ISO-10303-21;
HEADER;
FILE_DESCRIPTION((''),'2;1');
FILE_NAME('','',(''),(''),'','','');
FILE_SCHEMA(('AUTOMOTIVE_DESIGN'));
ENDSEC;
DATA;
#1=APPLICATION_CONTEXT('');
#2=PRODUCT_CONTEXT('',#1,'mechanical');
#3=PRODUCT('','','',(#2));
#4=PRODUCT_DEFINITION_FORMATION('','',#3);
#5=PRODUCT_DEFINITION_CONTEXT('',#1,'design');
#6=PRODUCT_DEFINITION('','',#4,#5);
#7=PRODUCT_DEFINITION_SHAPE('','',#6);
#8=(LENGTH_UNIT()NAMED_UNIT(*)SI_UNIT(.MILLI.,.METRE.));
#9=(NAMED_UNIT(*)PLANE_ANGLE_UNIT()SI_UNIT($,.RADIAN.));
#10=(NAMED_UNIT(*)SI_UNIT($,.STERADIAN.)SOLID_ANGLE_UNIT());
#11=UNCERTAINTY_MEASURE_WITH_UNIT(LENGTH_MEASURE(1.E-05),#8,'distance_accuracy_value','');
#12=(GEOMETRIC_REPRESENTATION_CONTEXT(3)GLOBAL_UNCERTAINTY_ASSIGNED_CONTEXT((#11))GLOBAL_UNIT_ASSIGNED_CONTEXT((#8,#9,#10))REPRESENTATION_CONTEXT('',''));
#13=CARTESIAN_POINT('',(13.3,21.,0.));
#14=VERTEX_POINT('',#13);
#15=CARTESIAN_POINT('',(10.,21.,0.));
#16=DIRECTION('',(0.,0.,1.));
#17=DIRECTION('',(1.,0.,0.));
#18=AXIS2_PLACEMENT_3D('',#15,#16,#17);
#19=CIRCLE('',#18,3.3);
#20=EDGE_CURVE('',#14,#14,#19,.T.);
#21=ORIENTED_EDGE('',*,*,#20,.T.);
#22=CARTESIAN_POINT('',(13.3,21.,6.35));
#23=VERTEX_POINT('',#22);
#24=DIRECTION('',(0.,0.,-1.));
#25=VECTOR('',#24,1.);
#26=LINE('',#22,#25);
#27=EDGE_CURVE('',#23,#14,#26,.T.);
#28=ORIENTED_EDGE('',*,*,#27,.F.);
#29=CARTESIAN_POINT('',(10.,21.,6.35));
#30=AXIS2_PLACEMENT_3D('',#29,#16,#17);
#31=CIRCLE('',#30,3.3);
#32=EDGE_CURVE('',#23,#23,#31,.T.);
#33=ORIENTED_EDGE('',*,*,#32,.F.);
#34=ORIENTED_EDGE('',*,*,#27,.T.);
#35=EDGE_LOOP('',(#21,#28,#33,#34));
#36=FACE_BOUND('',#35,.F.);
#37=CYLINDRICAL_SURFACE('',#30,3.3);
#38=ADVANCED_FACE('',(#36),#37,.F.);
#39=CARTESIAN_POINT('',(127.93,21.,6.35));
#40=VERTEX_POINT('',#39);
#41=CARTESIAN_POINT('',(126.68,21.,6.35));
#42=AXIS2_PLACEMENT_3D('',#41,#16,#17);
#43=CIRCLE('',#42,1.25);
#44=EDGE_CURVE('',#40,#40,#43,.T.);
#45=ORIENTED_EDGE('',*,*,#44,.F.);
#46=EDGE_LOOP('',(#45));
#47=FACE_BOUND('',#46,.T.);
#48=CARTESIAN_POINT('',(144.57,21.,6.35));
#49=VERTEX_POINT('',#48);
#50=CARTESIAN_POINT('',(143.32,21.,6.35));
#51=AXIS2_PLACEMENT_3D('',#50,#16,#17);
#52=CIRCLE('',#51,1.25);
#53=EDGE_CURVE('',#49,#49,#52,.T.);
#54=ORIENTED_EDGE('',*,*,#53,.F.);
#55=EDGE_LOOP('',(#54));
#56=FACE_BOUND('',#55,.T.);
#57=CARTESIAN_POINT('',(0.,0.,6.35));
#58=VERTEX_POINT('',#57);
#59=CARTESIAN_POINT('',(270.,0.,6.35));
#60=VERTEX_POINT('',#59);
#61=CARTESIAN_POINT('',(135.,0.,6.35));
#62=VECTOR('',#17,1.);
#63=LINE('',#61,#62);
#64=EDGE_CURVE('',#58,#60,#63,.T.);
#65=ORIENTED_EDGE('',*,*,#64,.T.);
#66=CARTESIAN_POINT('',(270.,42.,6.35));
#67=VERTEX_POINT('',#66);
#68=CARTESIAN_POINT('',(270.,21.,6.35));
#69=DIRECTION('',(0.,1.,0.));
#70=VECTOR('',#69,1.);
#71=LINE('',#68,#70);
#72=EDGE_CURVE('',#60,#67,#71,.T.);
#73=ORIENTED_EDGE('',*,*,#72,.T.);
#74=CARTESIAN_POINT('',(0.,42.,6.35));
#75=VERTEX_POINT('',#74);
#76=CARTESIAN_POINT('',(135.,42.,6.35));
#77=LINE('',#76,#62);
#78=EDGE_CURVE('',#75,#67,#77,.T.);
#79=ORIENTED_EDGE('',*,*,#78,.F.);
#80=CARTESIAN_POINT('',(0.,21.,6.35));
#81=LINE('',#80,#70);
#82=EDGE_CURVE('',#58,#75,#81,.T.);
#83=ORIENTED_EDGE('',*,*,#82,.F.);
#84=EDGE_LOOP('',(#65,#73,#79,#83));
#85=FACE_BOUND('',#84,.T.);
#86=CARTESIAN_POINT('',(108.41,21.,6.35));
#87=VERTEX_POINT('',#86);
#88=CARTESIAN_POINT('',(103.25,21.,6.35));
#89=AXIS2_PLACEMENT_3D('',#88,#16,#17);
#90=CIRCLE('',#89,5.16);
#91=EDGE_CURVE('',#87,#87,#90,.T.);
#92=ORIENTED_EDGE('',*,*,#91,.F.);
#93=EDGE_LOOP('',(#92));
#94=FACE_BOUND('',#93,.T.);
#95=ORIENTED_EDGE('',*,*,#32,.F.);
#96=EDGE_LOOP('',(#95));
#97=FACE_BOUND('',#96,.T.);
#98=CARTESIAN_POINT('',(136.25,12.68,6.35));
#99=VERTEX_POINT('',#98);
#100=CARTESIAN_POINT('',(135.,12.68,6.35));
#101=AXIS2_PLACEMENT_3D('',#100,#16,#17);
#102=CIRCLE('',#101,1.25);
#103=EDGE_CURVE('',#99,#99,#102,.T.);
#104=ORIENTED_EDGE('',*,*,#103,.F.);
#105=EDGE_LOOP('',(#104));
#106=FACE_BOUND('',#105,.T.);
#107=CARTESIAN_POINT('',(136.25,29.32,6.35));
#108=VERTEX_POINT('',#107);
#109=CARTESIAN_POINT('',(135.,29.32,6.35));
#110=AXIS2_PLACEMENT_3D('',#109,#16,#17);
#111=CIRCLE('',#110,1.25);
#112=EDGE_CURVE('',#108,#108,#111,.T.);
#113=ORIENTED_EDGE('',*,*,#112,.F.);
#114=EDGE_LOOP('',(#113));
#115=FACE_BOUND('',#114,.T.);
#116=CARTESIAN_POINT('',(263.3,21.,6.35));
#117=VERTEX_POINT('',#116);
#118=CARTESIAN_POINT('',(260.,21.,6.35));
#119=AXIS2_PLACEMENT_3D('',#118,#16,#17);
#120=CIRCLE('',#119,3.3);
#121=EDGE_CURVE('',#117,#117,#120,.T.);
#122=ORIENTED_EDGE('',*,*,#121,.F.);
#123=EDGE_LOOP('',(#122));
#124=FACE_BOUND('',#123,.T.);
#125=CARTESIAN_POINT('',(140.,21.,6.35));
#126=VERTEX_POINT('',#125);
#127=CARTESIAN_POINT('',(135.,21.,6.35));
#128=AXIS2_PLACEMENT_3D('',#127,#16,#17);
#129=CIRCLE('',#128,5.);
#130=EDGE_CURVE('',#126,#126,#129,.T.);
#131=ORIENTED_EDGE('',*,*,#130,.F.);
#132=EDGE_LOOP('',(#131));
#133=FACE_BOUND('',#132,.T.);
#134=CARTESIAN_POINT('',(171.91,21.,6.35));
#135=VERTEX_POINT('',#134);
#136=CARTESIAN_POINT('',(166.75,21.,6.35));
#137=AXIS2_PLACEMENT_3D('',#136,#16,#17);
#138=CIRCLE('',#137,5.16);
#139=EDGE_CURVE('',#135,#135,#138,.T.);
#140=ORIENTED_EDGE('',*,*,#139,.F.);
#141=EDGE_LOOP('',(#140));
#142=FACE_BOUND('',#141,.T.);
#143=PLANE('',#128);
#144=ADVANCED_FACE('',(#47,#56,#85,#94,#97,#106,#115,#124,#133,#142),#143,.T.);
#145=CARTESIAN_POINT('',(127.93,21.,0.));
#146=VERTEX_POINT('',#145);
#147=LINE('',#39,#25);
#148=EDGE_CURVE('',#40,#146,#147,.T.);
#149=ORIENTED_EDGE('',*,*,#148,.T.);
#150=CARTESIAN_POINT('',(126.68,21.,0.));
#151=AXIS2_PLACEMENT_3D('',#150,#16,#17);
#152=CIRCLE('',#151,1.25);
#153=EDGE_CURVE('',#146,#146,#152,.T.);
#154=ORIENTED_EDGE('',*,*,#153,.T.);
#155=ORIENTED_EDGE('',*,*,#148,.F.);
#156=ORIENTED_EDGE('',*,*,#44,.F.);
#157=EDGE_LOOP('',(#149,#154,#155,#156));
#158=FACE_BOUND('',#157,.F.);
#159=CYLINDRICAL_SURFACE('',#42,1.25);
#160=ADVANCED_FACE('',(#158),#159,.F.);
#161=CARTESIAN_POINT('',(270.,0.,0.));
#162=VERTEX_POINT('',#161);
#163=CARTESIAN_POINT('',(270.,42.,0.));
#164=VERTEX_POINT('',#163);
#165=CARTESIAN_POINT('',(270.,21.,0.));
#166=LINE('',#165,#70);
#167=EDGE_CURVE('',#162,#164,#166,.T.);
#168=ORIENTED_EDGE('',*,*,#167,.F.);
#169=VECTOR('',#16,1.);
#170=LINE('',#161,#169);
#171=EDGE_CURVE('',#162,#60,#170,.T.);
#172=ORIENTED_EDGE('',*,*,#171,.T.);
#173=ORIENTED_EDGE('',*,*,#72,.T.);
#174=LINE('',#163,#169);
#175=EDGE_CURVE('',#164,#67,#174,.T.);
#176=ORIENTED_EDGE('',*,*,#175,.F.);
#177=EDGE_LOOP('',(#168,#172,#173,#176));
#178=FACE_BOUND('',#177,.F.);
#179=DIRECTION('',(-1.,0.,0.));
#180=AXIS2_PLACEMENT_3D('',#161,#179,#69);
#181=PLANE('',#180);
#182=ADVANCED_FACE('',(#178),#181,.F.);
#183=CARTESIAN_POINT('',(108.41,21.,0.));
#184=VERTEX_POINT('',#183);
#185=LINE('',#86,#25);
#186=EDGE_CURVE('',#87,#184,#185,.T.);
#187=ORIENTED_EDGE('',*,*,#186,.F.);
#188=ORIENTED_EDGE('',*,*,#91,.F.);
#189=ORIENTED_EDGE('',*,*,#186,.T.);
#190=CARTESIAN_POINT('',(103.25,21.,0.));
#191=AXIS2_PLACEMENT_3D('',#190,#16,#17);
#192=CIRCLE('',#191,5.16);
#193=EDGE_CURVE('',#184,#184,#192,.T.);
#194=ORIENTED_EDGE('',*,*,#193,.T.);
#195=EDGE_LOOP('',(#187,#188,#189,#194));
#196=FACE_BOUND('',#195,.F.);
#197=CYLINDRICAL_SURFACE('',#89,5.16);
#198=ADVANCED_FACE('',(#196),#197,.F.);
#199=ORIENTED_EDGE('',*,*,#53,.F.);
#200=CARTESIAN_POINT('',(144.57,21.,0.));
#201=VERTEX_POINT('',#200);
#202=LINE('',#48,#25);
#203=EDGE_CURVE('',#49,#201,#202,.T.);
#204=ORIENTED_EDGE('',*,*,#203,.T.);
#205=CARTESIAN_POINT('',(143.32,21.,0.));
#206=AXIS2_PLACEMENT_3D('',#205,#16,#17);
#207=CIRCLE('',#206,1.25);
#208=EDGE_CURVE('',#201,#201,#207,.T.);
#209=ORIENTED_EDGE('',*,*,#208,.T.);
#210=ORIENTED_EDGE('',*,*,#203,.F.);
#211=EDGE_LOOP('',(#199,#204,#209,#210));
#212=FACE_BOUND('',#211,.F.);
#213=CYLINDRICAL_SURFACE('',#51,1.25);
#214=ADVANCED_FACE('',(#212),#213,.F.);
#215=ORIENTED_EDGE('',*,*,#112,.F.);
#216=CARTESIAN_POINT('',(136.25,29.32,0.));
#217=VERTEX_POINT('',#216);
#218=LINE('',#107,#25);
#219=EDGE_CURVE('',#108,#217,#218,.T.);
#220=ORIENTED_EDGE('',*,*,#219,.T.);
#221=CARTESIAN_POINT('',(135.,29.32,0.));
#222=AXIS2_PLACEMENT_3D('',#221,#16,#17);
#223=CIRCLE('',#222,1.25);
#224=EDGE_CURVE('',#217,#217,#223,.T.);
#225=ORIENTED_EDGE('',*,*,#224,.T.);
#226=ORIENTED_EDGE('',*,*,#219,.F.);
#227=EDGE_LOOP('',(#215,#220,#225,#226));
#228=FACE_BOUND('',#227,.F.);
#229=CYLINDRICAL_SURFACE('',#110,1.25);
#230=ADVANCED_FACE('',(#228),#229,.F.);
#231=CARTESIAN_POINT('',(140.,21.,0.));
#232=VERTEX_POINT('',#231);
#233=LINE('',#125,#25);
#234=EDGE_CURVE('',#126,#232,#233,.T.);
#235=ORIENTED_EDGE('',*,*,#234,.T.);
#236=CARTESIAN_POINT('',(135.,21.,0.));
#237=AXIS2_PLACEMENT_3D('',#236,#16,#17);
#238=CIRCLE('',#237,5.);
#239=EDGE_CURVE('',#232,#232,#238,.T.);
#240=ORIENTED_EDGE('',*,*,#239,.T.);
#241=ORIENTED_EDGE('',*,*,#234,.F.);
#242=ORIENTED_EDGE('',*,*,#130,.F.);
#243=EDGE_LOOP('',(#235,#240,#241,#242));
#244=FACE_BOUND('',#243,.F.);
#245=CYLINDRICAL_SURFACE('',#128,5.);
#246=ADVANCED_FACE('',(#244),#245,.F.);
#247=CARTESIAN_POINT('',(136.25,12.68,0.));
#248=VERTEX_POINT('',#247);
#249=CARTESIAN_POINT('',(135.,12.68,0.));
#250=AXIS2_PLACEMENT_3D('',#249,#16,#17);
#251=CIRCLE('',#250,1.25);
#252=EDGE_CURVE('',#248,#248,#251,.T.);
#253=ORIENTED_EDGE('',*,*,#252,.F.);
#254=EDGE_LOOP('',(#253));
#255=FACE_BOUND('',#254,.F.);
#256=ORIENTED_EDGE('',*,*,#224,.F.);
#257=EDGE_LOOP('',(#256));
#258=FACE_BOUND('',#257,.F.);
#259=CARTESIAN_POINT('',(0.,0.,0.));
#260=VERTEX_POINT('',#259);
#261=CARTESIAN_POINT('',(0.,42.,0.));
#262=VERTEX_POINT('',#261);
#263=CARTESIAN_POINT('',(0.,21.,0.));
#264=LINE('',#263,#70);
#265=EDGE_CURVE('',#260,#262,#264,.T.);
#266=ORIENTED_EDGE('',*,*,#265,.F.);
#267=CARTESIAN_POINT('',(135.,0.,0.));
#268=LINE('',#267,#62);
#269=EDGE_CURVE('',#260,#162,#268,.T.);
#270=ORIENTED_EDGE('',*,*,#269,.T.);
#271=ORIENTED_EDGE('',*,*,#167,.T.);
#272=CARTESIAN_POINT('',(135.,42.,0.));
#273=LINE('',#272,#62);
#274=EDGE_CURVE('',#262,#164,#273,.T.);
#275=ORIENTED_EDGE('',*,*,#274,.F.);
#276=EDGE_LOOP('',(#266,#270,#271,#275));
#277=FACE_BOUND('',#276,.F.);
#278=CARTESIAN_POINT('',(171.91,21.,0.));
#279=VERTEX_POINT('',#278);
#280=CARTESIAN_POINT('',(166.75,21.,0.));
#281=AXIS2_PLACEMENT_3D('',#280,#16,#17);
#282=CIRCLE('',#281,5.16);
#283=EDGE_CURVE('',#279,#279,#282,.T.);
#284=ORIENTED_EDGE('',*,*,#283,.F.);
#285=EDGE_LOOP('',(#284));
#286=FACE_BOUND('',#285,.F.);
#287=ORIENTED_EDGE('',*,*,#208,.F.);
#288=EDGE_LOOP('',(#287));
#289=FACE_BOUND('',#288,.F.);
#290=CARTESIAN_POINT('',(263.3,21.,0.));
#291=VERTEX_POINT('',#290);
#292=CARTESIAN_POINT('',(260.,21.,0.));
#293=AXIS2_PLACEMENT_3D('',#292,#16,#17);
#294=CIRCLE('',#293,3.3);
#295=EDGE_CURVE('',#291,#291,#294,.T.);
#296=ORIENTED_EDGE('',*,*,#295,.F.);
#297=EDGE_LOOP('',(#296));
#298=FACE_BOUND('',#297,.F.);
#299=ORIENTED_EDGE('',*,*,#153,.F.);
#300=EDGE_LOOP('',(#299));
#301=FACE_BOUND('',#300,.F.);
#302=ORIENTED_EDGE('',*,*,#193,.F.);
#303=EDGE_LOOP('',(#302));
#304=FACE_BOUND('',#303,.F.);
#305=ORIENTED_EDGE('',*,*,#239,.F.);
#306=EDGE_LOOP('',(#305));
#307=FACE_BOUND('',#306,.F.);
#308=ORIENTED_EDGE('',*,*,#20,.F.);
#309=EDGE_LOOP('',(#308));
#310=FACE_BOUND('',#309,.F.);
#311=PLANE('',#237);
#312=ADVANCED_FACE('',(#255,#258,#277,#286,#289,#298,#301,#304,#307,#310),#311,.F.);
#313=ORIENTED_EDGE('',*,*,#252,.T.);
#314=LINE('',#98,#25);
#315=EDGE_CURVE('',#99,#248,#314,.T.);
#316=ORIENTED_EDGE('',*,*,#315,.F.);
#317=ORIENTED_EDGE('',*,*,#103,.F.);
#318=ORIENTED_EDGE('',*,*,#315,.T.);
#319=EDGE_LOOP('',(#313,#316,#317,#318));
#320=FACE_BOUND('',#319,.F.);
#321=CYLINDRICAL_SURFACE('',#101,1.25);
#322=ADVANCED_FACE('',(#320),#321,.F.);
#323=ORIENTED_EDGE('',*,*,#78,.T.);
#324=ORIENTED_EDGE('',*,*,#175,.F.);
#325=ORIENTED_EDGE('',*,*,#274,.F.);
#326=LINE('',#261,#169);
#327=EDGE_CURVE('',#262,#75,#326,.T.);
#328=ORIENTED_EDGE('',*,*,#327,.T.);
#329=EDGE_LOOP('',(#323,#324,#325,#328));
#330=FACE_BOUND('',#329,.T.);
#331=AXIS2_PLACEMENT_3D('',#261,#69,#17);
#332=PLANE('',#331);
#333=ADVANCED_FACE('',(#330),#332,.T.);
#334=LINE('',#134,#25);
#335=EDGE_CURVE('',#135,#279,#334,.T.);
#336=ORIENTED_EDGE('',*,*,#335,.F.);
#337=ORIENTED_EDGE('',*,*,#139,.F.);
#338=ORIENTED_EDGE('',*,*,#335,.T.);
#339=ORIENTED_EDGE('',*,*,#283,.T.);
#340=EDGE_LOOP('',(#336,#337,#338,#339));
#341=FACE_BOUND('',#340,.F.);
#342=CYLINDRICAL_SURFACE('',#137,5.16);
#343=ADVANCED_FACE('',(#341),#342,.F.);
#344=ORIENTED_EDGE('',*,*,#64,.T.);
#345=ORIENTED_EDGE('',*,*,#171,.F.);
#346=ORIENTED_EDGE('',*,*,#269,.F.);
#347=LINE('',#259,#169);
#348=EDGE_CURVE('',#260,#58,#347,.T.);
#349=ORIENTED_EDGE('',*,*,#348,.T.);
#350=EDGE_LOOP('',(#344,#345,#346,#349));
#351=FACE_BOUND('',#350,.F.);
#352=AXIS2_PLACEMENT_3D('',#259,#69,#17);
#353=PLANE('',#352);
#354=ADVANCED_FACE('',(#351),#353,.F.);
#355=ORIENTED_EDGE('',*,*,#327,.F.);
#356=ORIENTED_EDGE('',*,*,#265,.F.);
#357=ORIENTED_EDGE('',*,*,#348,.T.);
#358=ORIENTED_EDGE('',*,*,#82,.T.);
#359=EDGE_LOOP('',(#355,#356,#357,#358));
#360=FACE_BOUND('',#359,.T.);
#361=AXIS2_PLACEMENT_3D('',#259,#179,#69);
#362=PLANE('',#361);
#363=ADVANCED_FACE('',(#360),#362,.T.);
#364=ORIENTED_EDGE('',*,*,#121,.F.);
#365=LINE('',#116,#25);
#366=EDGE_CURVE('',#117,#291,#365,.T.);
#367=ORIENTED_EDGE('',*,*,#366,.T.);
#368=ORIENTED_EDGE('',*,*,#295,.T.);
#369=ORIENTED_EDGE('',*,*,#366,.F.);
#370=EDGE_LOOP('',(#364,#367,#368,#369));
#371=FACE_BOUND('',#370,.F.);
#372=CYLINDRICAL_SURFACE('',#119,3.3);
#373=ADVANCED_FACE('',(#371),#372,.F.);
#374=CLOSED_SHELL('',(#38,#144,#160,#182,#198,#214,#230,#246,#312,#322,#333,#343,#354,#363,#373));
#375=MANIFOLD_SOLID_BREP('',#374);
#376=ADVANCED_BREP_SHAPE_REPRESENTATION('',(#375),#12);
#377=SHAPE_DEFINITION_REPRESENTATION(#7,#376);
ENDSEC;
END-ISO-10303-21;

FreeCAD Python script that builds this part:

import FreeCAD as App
import Part
import Sketcher

V = App.Vector

doc = App.newDocument("Part")
params = doc.addObject("Spreadsheet::Sheet", "Params")
for row, (alias, value) in enumerate([
    ("sketch1_width", "270 mm"),
    ("sketch1_height", "42 mm"),
    ("pad1_length", "6.35 mm"),
    ("sketch2_diameter", "10 mm"),
    ("sketch3_diameter", "6.6 mm"),
    ("sketch4_diameter", "10.32 mm"),
    ("sketch5_diameter", "2.5 mm"),
], start=1):
    params.set(f"A{row}", alias)
    params.set(f"B{row}", "=" + value)
    params.setAlias(f"B{row}", alias)

body = doc.addObject("PartDesign::Body", "Body")

# Sketch on XY plane
sketch1 = body.newObject("Sketcher::SketchObject", "Sketch")
sketch1.AttachmentSupport = (doc.getObject("XY_Plane"), [""])
sketch1.MapMode = "FlatFace"
sketch1.addGeometry(Part.LineSegment(V(0, 42, 0), V(0, 0, 0)), False)
sketch1.addGeometry(Part.LineSegment(V(0, 0, 0), V(270, 0, 0)), False)
sketch1.addGeometry(Part.LineSegment(V(270, 0, 0), V(270, 42, 0)), False)
sketch1.addGeometry(Part.LineSegment(V(270, 42, 0), V(0, 42, 0)), False)
sketch1.addConstraint(Sketcher.Constraint("Coincident", 0, 2, 1, 1))
sketch1.addConstraint(Sketcher.Constraint("Coincident", 1, 2, 2, 1))
sketch1.addConstraint(Sketcher.Constraint("Coincident", 2, 2, 3, 1))
sketch1.addConstraint(Sketcher.Constraint("Coincident", 3, 2, 0, 1))
sketch1.addConstraint(Sketcher.Constraint("Vertical", 0))
sketch1.addConstraint(Sketcher.Constraint("Horizontal", 1))
sketch1.addConstraint(Sketcher.Constraint("Vertical", 2))
sketch1.addConstraint(Sketcher.Constraint("Horizontal", 3))
sketch1.addConstraint(Sketcher.Constraint("Coincident", 0, 2, -1, 1))
sketch1.addConstraint(Sketcher.Constraint("DistanceX", 1, 1, 1, 2, 270.0))
sketch1.addConstraint(Sketcher.Constraint("DistanceY", 0, 2, 0, 1, 42.0))
sketch1.setExpression("Constraints[9]", "Params.sketch1_width")
sketch1.setExpression("Constraints[10]", "Params.sketch1_height")
pad1 = body.newObject("PartDesign::Pad", "Pad")
pad1.Profile = sketch1
pad1.setExpression("Length", "Params.pad1_length")

# Sketch on XY plane
sketch2 = body.newObject("Sketcher::SketchObject", "Sketch001")
sketch2.AttachmentSupport = (doc.getObject("XY_Plane"), [""])
sketch2.MapMode = "FlatFace"
sketch2.AttachmentOffset = App.Placement(V(0, 0, 6.35), App.Rotation())
sketch2.addGeometry(Part.Circle(V(135, 21, 0), V(0, 0, 1), 5), False)
sketch2.addConstraint(Sketcher.Constraint("Diameter", 0, 10.0))
sketch2.addConstraint(Sketcher.Constraint("DistanceX", -1, 1, 0, 3, 135.0))
sketch2.addConstraint(Sketcher.Constraint("DistanceY", -1, 1, 0, 3, 21.0))
sketch2.setExpression("Constraints[0]", "Params.sketch2_diameter")
pocket1 = body.newObject("PartDesign::Pocket", "Pocket")
pocket1.Profile = sketch2
pocket1.Type = "ThroughAll"

# Sketch on XY plane
sketch3 = body.newObject("Sketcher::SketchObject", "Sketch002")
sketch3.AttachmentSupport = (doc.getObject("XY_Plane"), [""])
sketch3.MapMode = "FlatFace"
sketch3.AttachmentOffset = App.Placement(V(0, 0, 6.35), App.Rotation())
sketch3.addGeometry(Part.Circle(V(10, 21, 0), V(0, 0, 1), 3.3), False)
sketch3.addGeometry(Part.Circle(V(260, 21, 0), V(0, 0, 1), 3.3), False)
sketch3.addConstraint(Sketcher.Constraint("Equal", 0, 1))
sketch3.addConstraint(Sketcher.Constraint("Horizontal", 0, 3, 1, 3))
sketch3.addConstraint(Sketcher.Constraint("Diameter", 0, 6.6))
sketch3.addConstraint(Sketcher.Constraint("DistanceX", -1, 1, 0, 3, 10.0))
sketch3.addConstraint(Sketcher.Constraint("DistanceY", -1, 1, 0, 3, 21.0))
sketch3.addConstraint(Sketcher.Constraint("DistanceX", -1, 1, 1, 3, 260.0))
sketch3.setExpression("Constraints[2]", "Params.sketch3_diameter")
pocket2 = body.newObject("PartDesign::Pocket", "Pocket001")
pocket2.Profile = sketch3
pocket2.Type = "ThroughAll"

# Sketch on XY plane
sketch4 = body.newObject("Sketcher::SketchObject", "Sketch003")
sketch4.AttachmentSupport = (doc.getObject("XY_Plane"), [""])
sketch4.MapMode = "FlatFace"
sketch4.AttachmentOffset = App.Placement(V(0, 0, 6.35), App.Rotation())
sketch4.addGeometry(Part.Circle(V(103, 21, 0), V(0, 0, 1), 5), False)
sketch4.addGeometry(Part.Circle(V(167, 21, 0), V(0, 0, 1), 5), False)
sketch4.addConstraint(Sketcher.Constraint("Equal", 0, 1))
sketch4.addConstraint(Sketcher.Constraint("Horizontal", 0, 3, 1, 3))
sketch4.addConstraint(Sketcher.Constraint("Diameter", 0, 10.32))
sketch4.addConstraint(Sketcher.Constraint("DistanceY", -1, 1, 0, 3, 21.0))
sketch4.addConstraint(Sketcher.Constraint("DistanceX", 0, 3, 1, 3, 63.5))
sketch4.addConstraint(Sketcher.Constraint("DistanceX", -1, 1, 0, 3, 103.25))
sketch4.setExpression("Constraints[2]", "Params.sketch4_diameter")
pocket3 = body.newObject("PartDesign::Pocket", "Pocket002")
pocket3.Profile = sketch4
pocket3.Type = "ThroughAll"

# Sketch on XY plane
sketch5 = body.newObject("Sketcher::SketchObject", "Sketch004")
sketch5.AttachmentSupport = (doc.getObject("XY_Plane"), [""])
sketch5.MapMode = "FlatFace"
sketch5.AttachmentOffset = App.Placement(V(0, 0, 6.35), App.Rotation())
sketch5.addGeometry(Part.Circle(V(135, 29.3, 0), V(0, 0, 1), 1.2), False)
sketch5.addGeometry(Part.Circle(V(126.7, 21, 0), V(0, 0, 1), 1.2), False)
sketch5.addGeometry(Part.Circle(V(135, 12.7, 0), V(0, 0, 1), 1.2), False)
sketch5.addGeometry(Part.Circle(V(143.3, 21, 0), V(0, 0, 1), 1.2), False)
sketch5.addConstraint(Sketcher.Constraint("Equal", 0, 1))
sketch5.addConstraint(Sketcher.Constraint("Equal", 1, 2))
sketch5.addConstraint(Sketcher.Constraint("Equal", 2, 3))
sketch5.addConstraint(Sketcher.Constraint("Horizontal", 1, 3, 3, 3))
sketch5.addConstraint(Sketcher.Constraint("Vertical", 0, 3, 2, 3))
sketch5.addConstraint(Sketcher.Constraint("Diameter", 0, 2.5))
sketch5.addConstraint(Sketcher.Constraint("DistanceX", -1, 1, 0, 3, 135.0))
sketch5.addConstraint(Sketcher.Constraint("DistanceY", -1, 1, 1, 3, 21.0))
sketch5.addConstraint(Sketcher.Constraint("DistanceY", -1, 1, 0, 3, 29.32))
sketch5.addConstraint(Sketcher.Constraint("DistanceX", -1, 1, 1, 3, 126.68))
sketch5.addConstraint(Sketcher.Constraint("DistanceY", -1, 1, 2, 3, 12.68))
sketch5.addConstraint(Sketcher.Constraint("DistanceX", -1, 1, 3, 3, 143.32))
sketch5.setExpression("Constraints[5]", "Params.sketch5_diameter")
pocket4 = body.newObject("PartDesign::Pocket", "Pocket003")
pocket4.Profile = sketch5
pocket4.Type = "ThroughAll"

doc.recompute()
